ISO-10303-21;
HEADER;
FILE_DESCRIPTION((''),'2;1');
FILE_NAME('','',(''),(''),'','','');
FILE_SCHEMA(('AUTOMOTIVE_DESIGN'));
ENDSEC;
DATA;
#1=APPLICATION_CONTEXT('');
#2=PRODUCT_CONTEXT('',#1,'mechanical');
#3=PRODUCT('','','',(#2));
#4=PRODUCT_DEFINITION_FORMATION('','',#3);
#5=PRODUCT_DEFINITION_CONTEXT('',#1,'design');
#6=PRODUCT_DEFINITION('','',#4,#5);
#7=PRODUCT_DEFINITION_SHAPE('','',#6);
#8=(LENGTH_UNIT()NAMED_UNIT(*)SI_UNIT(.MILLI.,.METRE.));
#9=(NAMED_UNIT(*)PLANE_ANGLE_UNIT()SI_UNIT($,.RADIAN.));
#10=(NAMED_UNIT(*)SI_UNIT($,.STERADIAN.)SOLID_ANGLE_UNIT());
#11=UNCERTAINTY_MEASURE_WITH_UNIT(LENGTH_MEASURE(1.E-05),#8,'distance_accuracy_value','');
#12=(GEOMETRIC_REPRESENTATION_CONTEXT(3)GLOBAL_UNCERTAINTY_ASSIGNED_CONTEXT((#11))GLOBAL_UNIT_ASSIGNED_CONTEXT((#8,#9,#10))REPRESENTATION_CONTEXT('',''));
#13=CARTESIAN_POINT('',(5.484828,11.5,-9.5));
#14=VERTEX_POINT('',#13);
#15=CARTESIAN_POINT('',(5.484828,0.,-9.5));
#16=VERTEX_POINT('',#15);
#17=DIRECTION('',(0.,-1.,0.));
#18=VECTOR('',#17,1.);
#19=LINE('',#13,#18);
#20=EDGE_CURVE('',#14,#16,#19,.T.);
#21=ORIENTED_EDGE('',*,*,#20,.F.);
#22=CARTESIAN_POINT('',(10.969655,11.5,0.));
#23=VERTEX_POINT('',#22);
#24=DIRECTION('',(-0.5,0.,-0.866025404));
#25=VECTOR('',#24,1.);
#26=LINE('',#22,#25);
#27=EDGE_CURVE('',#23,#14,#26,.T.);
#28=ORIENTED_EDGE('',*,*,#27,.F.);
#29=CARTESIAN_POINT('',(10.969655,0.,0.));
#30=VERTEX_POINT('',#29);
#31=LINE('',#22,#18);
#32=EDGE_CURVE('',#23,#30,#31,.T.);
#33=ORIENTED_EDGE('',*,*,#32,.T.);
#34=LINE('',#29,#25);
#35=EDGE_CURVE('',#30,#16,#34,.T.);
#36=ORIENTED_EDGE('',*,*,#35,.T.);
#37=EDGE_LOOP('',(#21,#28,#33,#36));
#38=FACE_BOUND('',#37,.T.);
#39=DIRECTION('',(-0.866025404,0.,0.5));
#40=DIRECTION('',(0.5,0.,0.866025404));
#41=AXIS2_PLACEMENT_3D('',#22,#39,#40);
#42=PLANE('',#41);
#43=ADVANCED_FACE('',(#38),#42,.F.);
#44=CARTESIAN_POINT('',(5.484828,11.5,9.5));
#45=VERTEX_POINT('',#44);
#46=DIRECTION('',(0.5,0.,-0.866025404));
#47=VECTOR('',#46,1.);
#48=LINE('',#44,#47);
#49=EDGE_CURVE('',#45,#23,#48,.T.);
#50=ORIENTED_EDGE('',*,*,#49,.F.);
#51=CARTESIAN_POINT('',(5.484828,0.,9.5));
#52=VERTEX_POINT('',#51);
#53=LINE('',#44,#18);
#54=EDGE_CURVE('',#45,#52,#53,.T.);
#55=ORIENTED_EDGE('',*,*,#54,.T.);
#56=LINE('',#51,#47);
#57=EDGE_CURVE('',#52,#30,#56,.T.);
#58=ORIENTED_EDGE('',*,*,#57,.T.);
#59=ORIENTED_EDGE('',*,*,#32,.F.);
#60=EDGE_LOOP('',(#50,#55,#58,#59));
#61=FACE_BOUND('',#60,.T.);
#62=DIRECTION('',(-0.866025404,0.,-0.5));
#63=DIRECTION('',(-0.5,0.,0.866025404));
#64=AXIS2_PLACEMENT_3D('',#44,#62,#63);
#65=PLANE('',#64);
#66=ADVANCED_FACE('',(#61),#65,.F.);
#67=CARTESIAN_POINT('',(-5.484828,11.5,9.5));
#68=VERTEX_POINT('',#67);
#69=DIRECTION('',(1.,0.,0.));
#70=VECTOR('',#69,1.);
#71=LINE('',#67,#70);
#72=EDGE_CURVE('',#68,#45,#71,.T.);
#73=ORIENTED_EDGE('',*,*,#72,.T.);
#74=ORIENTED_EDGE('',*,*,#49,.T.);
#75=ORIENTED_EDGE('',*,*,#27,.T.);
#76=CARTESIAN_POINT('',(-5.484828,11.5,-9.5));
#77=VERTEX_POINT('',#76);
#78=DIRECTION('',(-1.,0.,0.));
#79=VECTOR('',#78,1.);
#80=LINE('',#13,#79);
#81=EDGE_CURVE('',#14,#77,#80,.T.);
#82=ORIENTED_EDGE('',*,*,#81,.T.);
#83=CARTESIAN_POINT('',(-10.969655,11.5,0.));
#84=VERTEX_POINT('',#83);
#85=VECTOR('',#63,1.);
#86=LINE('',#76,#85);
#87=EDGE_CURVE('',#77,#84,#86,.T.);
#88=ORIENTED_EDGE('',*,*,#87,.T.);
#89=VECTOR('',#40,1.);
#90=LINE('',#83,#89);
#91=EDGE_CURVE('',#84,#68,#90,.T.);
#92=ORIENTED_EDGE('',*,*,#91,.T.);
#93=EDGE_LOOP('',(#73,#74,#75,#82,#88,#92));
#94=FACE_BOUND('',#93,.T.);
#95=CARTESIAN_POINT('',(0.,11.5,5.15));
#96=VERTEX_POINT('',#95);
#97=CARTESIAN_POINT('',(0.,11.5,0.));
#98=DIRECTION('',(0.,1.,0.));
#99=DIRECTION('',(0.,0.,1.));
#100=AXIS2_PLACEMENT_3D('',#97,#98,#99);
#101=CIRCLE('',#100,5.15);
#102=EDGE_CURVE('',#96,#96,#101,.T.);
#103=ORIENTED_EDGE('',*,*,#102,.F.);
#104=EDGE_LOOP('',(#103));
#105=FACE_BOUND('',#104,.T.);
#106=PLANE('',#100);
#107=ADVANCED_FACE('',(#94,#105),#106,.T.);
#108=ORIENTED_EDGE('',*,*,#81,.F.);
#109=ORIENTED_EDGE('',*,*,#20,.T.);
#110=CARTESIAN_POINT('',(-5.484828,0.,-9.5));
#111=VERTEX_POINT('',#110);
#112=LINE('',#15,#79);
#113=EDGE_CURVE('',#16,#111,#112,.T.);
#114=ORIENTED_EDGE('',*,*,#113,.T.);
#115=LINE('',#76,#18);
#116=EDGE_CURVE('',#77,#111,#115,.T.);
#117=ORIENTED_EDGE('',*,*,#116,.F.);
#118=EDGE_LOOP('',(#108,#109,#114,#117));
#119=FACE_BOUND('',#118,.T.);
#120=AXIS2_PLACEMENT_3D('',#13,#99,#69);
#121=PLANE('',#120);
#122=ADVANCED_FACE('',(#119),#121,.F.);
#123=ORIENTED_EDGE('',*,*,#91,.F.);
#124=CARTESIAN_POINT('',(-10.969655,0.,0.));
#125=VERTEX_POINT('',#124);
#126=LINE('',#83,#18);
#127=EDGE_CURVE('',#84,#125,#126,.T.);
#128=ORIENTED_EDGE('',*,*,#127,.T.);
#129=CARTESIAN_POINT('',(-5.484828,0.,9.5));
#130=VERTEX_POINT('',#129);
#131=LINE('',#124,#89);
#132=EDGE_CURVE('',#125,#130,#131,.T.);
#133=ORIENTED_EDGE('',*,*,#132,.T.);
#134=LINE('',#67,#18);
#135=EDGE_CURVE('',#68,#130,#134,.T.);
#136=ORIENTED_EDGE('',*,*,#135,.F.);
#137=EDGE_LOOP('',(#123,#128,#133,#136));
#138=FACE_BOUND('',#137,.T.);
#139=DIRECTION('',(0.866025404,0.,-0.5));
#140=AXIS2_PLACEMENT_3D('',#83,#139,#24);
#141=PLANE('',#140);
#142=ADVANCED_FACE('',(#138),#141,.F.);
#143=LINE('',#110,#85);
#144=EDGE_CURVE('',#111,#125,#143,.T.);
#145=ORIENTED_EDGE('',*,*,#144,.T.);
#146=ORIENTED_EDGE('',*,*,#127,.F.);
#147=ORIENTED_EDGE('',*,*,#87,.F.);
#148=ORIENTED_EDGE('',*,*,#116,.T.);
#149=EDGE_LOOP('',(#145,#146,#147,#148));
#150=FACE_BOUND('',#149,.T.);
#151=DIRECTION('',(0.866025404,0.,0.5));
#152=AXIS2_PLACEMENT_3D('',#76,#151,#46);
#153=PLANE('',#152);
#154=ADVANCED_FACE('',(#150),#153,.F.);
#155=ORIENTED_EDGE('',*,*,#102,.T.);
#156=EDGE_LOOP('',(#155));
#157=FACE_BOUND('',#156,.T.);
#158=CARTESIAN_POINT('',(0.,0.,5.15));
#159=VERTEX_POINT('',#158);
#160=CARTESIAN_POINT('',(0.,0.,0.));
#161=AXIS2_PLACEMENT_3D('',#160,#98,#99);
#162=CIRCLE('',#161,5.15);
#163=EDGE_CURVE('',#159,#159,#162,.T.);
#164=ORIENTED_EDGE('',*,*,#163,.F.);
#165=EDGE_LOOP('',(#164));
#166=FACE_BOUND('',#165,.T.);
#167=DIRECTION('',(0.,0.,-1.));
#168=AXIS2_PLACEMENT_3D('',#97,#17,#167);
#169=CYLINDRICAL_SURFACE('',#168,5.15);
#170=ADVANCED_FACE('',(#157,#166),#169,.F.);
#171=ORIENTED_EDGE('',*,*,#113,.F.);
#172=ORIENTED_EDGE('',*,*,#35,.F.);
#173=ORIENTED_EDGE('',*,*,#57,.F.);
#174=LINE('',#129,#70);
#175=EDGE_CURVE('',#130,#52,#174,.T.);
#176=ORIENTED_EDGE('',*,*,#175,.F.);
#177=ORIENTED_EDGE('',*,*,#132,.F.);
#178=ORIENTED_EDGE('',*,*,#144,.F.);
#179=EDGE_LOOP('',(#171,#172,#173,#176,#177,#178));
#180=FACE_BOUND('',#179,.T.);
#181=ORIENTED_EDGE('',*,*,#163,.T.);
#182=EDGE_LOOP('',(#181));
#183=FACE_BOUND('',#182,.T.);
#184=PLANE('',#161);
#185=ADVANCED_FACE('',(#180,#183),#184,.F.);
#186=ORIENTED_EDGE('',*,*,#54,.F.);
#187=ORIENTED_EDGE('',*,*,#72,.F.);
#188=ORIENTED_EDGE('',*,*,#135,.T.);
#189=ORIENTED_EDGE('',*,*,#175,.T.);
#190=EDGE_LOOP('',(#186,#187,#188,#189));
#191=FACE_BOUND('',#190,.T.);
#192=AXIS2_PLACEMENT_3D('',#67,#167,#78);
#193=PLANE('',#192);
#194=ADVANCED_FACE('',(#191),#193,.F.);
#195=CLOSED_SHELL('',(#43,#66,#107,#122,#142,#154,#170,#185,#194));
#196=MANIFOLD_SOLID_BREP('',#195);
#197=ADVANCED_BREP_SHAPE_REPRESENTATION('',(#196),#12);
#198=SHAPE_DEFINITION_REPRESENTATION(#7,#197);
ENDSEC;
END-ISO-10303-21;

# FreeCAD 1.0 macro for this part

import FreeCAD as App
import Part
import Sketcher
from FreeCAD import Vector
Q = App.Units.Quantity


def add_polygon(sketch, points):
    """Adds a closed chain of lines whose ends are joined by coincident constraints."""
    first, n = sketch.GeometryCount, len(points)
    for a, b in zip(points, points[1:] + points[:1]):
        sketch.addGeometry(Part.LineSegment(App.Vector(*a, 0), App.Vector(*b, 0)), False)
    for i in range(n):
        sketch.addConstraint(Sketcher.Constraint("Coincident", first + i, 2, first + (i + 1) % n, 1))

doc = App.newDocument("Part")
body = doc.addObject("PartDesign::Body", "Body")

# Sketch on XZ plane
sketch1 = body.newObject("Sketcher::SketchObject", "Sketch")
sketch1.AttachmentSupport = (doc.getObject("XZ_Plane"), [""])
sketch1.MapMode = "FlatFace"
add_polygon(sketch1, [(11, 0), (5, -10), (-5, -10), (-11, 0), (-5, 10), (5, 10)])  # lines 0-5
sketch1.addGeometry(Part.Circle(Vector(0, 0, 0), Vector(0, 0, 1), 5), False)  # 6
sketch1.addConstraint(Sketcher.Constraint("Horizontal", 1))
sketch1.addConstraint(Sketcher.Constraint("Horizontal", 4))
sketch1.addConstraint(Sketcher.Constraint("Coincident", 6, 3, -1, 1))
sketch1.addConstraint(Sketcher.Constraint("Symmetric", 0, 2, 3, 2, -1, 1))
sketch1.addConstraint(Sketcher.Constraint("Symmetric", 2, 2, 5, 2, -1, 1))
sketch1.addConstraint(Sketcher.Constraint("PointOnObject", 2, 2, -1))
sketch1.addConstraint(Sketcher.Constraint("Parallel", 2, 5))
sketch1.addConstraint(Sketcher.Constraint("Vertical", 1, 2, 3, 2))
sketch1.addConstraint(Sketcher.Constraint("Diameter", 6, Q("10.3 mm")))
sketch1.addConstraint(Sketcher.Constraint("Angle", 0, Q("-120 deg")))
sketch1.addConstraint(Sketcher.Constraint("DistanceY", 1, 2, 3, 2, Q("19 mm")))
sketch1.addConstraint(Sketcher.Constraint("DistanceX", 1, 2, 1, 1, Q("10.969655 mm")))
pad1 = body.newObject("PartDesign::Pad", "Pad")
pad1.Profile = sketch1
pad1.Length = 11.5
pad1.Reversed = True

doc.recompute()
